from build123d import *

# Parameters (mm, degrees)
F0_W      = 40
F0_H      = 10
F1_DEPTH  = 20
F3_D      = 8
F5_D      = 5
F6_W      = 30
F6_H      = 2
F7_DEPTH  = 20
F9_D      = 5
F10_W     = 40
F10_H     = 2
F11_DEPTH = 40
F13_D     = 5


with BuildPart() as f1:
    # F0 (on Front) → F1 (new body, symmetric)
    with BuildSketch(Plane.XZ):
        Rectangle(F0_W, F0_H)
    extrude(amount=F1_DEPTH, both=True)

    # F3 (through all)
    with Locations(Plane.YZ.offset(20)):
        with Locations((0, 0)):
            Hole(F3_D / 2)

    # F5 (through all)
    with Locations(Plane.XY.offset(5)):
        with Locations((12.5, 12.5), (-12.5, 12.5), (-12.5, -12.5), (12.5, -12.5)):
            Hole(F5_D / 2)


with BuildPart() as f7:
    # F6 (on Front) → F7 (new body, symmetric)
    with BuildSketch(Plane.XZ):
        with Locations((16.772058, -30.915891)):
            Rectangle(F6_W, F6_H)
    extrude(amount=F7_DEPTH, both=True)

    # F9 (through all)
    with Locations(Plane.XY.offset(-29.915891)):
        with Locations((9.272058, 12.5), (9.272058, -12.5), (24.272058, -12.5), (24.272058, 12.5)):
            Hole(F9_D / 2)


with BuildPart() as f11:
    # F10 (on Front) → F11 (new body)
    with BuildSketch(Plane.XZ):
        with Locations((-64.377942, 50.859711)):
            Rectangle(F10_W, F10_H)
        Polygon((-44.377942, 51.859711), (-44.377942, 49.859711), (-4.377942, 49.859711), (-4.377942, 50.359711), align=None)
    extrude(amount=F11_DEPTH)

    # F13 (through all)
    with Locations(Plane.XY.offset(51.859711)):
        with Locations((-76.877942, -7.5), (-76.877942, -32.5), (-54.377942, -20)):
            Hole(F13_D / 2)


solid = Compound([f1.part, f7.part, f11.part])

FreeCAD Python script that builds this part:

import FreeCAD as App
import Part
import Sketcher
Q = App.Units.Quantity

doc = App.newDocument("Part")
params = doc.addObject("Spreadsheet::Sheet", "Params")
for row, (alias, value) in enumerate([
    ("sketch1_width", "40 mm"),
    ("sketch1_height", "10 mm"),
    ("pad1_length", "40 mm"),
    ("sketch2_diameter", "8 mm"),
    ("hole_diameter", "8 mm"),
    ("sketch3_diameter", "5 mm"),
    ("hole2_diameter", "5 mm"),
    ("sketch4_width", "30 mm"),
    ("sketch4_height", "2 mm"),
    ("pad2_length", "40 mm"),
    ("sketch5_diameter", "5 mm"),
    ("hole3_diameter", "5 mm"),
    ("sketch6_width", "80 mm"),
    ("sketch6_width2", "40 mm"),
    ("sketch6_height", "2 mm"),
    ("sketch6_height2", "0.5 mm"),
    ("pad3_length", "40 mm"),
    ("sketch7_diameter", "5 mm"),
    ("hole4_diameter", "5 mm"),
], start=1):
    params.set(f"A{row}", alias)
    params.set(f"B{row}", "=" + value)
    params.setAlias(f"B{row}", alias)

body = doc.addObject("PartDesign::Body", "Body")

sketch1 = body.newObject("Sketcher::SketchObject", "Sketch")
sketch1.AttachmentSupport = (doc.getObject("XZ_Plane"), [""])
sketch1.MapMode = "FlatFace"
sketch1.addGeometry([
    Part.LineSegment(App.Vector(-20, 5, 0), App.Vector(-20, -5, 0)),
    Part.LineSegment(App.Vector(-20, -5, 0), App.Vector(20, -5, 0)),
    Part.LineSegment(App.Vector(20, -5, 0), App.Vector(20, 5, 0)),
    Part.LineSegment(App.Vector(20, 5, 0), App.Vector(-20, 5, 0)),
], False)
sketch1.addConstraint([
    Sketcher.Constraint("Coincident", 0, 2, 1, 1),
    Sketcher.Constraint("Coincident", 1, 2, 2, 1),
    Sketcher.Constraint("Coincident", 2, 2, 3, 1),
    Sketcher.Constraint("Coincident", 3, 2, 0, 1),
    Sketcher.Constraint("Vertical", 0),
    Sketcher.Constraint("Horizontal", 1),
    Sketcher.Constraint("Vertical", 2),
    Sketcher.Constraint("Horizontal", 3),
    Sketcher.Constraint("Symmetric", 0, 2, 2, 2, -1, 1),
    Sketcher.Constraint("DistanceX", 1, 1, 1, 2, Q("40 mm")),
    Sketcher.Constraint("DistanceY", 0, 2, 0, 1, Q("10 mm")),
])
sketch1.setExpression("Constraints[9]", "Params.sketch1_width")
sketch1.setExpression("Constraints[10]", "Params.sketch1_height")
pad1 = body.newObject("PartDesign::Pad", "Pad")
pad1.Profile = sketch1
pad1.setExpression("Length", "Params.pad1_length")
pad1.Midplane = True

sketch2 = body.newObject("Sketcher::SketchObject", "Sketch001")
sketch2.AttachmentSupport = (doc.getObject("YZ_Plane"), [""])
sketch2.MapMode = "FlatFace"
sketch2.AttachmentOffset = App.Placement(App.Vector(0, 0, 20), App.Rotation())
sketch2.addGeometry(Part.Circle(App.Vector(0, 0, 0), App.Vector(0, 0, 1), 4), False)
sketch2.addConstraint([
    Sketcher.Constraint("Coincident", 0, 3, -1, 1),
    Sketcher.Constraint("Diameter", 0, Q("8 mm")),
])
sketch2.setExpression("Constraints[1]", "Params.sketch2_diameter")
doc.recompute()
hole = body.newObject("PartDesign::Hole", "Hole")
hole.Profile = sketch2
hole.ThreadType = "None"
hole.setExpression("Diameter", "Params.hole_diameter")
hole.DepthType = "ThroughAll"

sketch3 = body.newObject("Sketcher::SketchObject", "Sketch002")
sketch3.AttachmentSupport = (doc.getObject("XY_Plane"), [""])
sketch3.MapMode = "FlatFace"
sketch3.AttachmentOffset = App.Placement(App.Vector(0, 0, 5), App.Rotation())
sketch3.addGeometry([
    Part.Circle(App.Vector(12.5, 12.5, 0), App.Vector(0, 0, 1), 2.5),
    Part.Circle(App.Vector(-12.5, 12.5, 0), App.Vector(0, 0, 1), 2.5),
    Part.Circle(App.Vector(-12.5, -12.5, 0), App.Vector(0, 0, 1), 2.5),
    Part.Circle(App.Vector(12.5, -12.5, 0), App.Vector(0, 0, 1), 2.5),
], False)
sketch3.addConstraint([
    Sketcher.Constraint("Equal", 0, 1),
    Sketcher.Constraint("Equal", 1, 2),
    Sketcher.Constraint("Equal", 2, 3),
    Sketcher.Constraint("Symmetric", 0, 3, 2, 3, -1, 1),
    Sketcher.Constraint("Symmetric", 1, 3, 3, 3, -1, 1),
    Sketcher.Constraint("Symmetric", 0, 3, 1, 3, -2),
    Sketcher.Constraint("Diameter", 0, Q("5 mm")),
    Sketcher.Constraint("DistanceX", 1, 3, 0, 3, Q("25 mm")),
    Sketcher.Constraint("DistanceY", 2, 3, 1, 3, Q("25 mm")),
])
sketch3.setExpression("Constraints[6]", "Params.sketch3_diameter")
doc.recompute()
hole2 = body.newObject("PartDesign::Hole", "Hole001")
hole2.Profile = sketch3
hole2.ThreadType = "None"
hole2.setExpression("Diameter", "Params.hole2_diameter")
hole2.DepthType = "ThroughAll"
body2 = doc.addObject("PartDesign::Body", "Body001")

sketch4 = body2.newObject("Sketcher::SketchObject", "Sketch003")
sketch4.AttachmentSupport = (doc.getObject("XZ_Plane001"), [""])
sketch4.MapMode = "FlatFace"
sketch4.addGeometry([
    Part.LineSegment(App.Vector(1.8, -29.9, 0), App.Vector(1.8, -31.9, 0)),
    Part.LineSegment(App.Vector(1.8, -31.9, 0), App.Vector(31.8, -31.9, 0)),
    Part.LineSegment(App.Vector(31.8, -31.9, 0), App.Vector(31.8, -29.9, 0)),
    Part.LineSegment(App.Vector(31.8, -29.9, 0), App.Vector(1.8, -29.9, 0)),
], False)
sketch4.addConstraint([
    Sketcher.Constraint("Coincident", 0, 2, 1, 1),
    Sketcher.Constraint("Coincident", 1, 2, 2, 1),
    Sketcher.Constraint("Coincident", 2, 2, 3, 1),
    Sketcher.Constraint("Coincident", 3, 2, 0, 1),
    Sketcher.Constraint("Vertical", 0),
    Sketcher.Constraint("Horizontal", 1),
    Sketcher.Constraint("Vertical", 2),
    Sketcher.Constraint("Horizontal", 3),
    Sketcher.Constraint("DistanceX", 1, 1, 1, 2, Q("30 mm")),
    Sketcher.Constraint("DistanceY", 0, 2, 0, 1, Q("2 mm")),
    Sketcher.Constraint("DistanceY", 0, 2, -1, 1, Q("31.915891 mm")),
    Sketcher.Constraint("DistanceX", -1, 1, 1, 2, Q("31.772058 mm")),
])
sketch4.setExpression("Constraints[8]", "Params.sketch4_width")
sketch4.setExpression("Constraints[9]", "Params.sketch4_height")
pad2 = body2.newObject("PartDesign::Pad", "Pad001")
pad2.Profile = sketch4
pad2.setExpression("Length", "Params.pad2_length")
pad2.Midplane = True

sketch5 = body2.newObject("Sketcher::SketchObject", "Sketch004")
sketch5.AttachmentSupport = (doc.getObject("XY_Plane001"), [""])
sketch5.MapMode = "FlatFace"
sketch5.AttachmentOffset = App.Placement(App.Vector(0, 0, -29.915891), App.Rotation())
sketch5.addGeometry([
    Part.Circle(App.Vector(9.3, 12.5, 0), App.Vector(0, 0, 1), 2.5),
    Part.Circle(App.Vector(9.3, -12.5, 0), App.Vector(0, 0, 1), 2.5),
    Part.Circle(App.Vector(24.3, -12.5, 0), App.Vector(0, 0, 1), 2.5),
    Part.Circle(App.Vector(24.3, 12.5, 0), App.Vector(0, 0, 1), 2.5),
], False)
sketch5.addConstraint([
    Sketcher.Constraint("Equal", 0, 1),
    Sketcher.Constraint("Equal", 1, 2),
    Sketcher.Constraint("Equal", 2, 3),
    Sketcher.Constraint("Symmetric", 0, 3, 1, 3, -1),
    Sketcher.Constraint("Symmetric", 2, 3, 3, 3, -1),
    Sketcher.Constraint("Horizontal", 1, 3, 2, 3),
    Sketcher.Constraint("Diameter", 0, Q("5 mm")),
    Sketcher.Constraint("DistanceY", 1, 3, 0, 3, Q("25 mm")),
    Sketcher.Constraint("DistanceX", 1, 3, 2, 3, Q("15 mm")),
    Sketcher.Constraint("DistanceX", -1, 1, 2, 3, Q("24.272058 mm")),
])
sketch5.setExpression("Constraints[6]", "Params.sketch5_diameter")
doc.recompute()
hole3 = body2.newObject("PartDesign::Hole", "Hole002")
hole3.Profile = sketch5
hole3.ThreadType = "None"
hole3.setExpression("Diameter", "Params.hole3_diameter")
hole3.DepthType = "ThroughAll"
body3 = doc.addObject("PartDesign::Body", "Body002")

sketch6 = body3.newObject("Sketcher::SketchObject", "Sketch005")
sketch6.AttachmentSupport = (doc.getObject("XZ_Plane002"), [""])
sketch6.MapMode = "FlatFace"
sketch6.addGeometry([
    Part.LineSegment(App.Vector(-84.4, 51.9, 0), App.Vector(-84.4, 49.9, 0)),
    Part.LineSegment(App.Vector(-84.4, 49.9, 0), App.Vector(-4.4, 49.9, 0)),
    Part.LineSegment(App.Vector(-4.4, 49.9, 0), App.Vector(-4.4, 50.4, 0)),
    Part.LineSegment(App.Vector(-4.4, 50.4, 0), App.Vector(-44.4, 51.9, 0)),
    Part.LineSegment(App.Vector(-44.4, 51.9, 0), App.Vector(-84.4, 51.9, 0)),
], False)
sketch6.addConstraint([
    Sketcher.Constraint("Coincident", 0, 2, 1, 1),
    Sketcher.Constraint("Coincident", 1, 2, 2, 1),
    Sketcher.Constraint("Coincident", 2, 2, 3, 1),
    Sketcher.Constraint("Coincident", 3, 2, 4, 1),
    Sketcher.Constraint("Coincident", 4, 2, 0, 1),
    Sketcher.Constraint("Vertical", 0),
    Sketcher.Constraint("Horizontal", 1),
    Sketcher.Constraint("Vertical", 2),
    Sketcher.Constraint("Horizontal", 4),
    Sketcher.Constraint("DistanceX", 1, 1, 1, 2, Q("80 mm")),
    Sketcher.Constraint("DistanceX", 4, 2, 4, 1, Q("40 mm")),
    Sketcher.Constraint("DistanceY", 0, 2, 0, 1, Q("2 mm")),
    Sketcher.Constraint("DistanceY", 2, 1, 2, 2, Q("0.5 mm")),
    Sketcher.Constraint("DistanceY", -1, 1, 0, 2, Q("49.859711 mm")),
    Sketcher.Constraint("DistanceX", 3, 2, -1, 1, Q("44.377942 mm")),
])
sketch6.setExpression("Constraints[9]", "Params.sketch6_width")
sketch6.setExpression("Constraints[10]", "Params.sketch6_width2")
sketch6.setExpression("Constraints[11]", "Params.sketch6_height")
sketch6.setExpression("Constraints[12]", "Params.sketch6_height2")
pad3 = body3.newObject("PartDesign::Pad", "Pad002")
pad3.Profile = sketch6
pad3.setExpression("Length", "Params.pad3_length")

sketch7 = body3.newObject("Sketcher::SketchObject", "Sketch006")
sketch7.AttachmentSupport = (doc.getObject("XY_Plane002"), [""])
sketch7.MapMode = "FlatFace"
sketch7.AttachmentOffset = App.Placement(App.Vector(0, 0, 51.859711), App.Rotation())
sketch7.addGeometry([
    Part.Circle(App.Vector(-76.9, -7.5, 0), App.Vector(0, 0, 1), 2.5),
    Part.Circle(App.Vector(-76.9, -32.5, 0), App.Vector(0, 0, 1), 2.5),
    Part.Circle(App.Vector(-54.4, -20, 0), App.Vector(0, 0, 1), 2.5),
], False)
sketch7.addConstraint([
    Sketcher.Constraint("Equal", 0, 1),
    Sketcher.Constraint("Equal", 1, 2),
    Sketcher.Constraint("Vertical", 0, 3, 1, 3),
    Sketcher.Constraint("Diameter", 0, Q("5 mm")),
    Sketcher.Constraint("DistanceY", 2, 3, -1, 1, Q("20 mm")),
    Sketcher.Constraint("DistanceY", 1, 3, 0, 3, Q("25 mm")),
    Sketcher.Constraint("DistanceY", 0, 3, -1, 1, Q("7.5 mm")),
    Sketcher.Constraint("DistanceX", 0, 3, 2, 3, Q("22.5 mm")),
    Sketcher.Constraint("DistanceX", 2, 3, -1, 1, Q("54.377942 mm")),
])
sketch7.setExpression("Constraints[3]", "Params.sketch7_diameter")
doc.recompute()
hole4 = body3.newObject("PartDesign::Hole", "Hole003")
hole4.Profile = sketch7
hole4.ThreadType = "None"
hole4.setExpression("Diameter", "Params.hole4_diameter")
hole4.DepthType = "ThroughAll"

doc.recompute()
